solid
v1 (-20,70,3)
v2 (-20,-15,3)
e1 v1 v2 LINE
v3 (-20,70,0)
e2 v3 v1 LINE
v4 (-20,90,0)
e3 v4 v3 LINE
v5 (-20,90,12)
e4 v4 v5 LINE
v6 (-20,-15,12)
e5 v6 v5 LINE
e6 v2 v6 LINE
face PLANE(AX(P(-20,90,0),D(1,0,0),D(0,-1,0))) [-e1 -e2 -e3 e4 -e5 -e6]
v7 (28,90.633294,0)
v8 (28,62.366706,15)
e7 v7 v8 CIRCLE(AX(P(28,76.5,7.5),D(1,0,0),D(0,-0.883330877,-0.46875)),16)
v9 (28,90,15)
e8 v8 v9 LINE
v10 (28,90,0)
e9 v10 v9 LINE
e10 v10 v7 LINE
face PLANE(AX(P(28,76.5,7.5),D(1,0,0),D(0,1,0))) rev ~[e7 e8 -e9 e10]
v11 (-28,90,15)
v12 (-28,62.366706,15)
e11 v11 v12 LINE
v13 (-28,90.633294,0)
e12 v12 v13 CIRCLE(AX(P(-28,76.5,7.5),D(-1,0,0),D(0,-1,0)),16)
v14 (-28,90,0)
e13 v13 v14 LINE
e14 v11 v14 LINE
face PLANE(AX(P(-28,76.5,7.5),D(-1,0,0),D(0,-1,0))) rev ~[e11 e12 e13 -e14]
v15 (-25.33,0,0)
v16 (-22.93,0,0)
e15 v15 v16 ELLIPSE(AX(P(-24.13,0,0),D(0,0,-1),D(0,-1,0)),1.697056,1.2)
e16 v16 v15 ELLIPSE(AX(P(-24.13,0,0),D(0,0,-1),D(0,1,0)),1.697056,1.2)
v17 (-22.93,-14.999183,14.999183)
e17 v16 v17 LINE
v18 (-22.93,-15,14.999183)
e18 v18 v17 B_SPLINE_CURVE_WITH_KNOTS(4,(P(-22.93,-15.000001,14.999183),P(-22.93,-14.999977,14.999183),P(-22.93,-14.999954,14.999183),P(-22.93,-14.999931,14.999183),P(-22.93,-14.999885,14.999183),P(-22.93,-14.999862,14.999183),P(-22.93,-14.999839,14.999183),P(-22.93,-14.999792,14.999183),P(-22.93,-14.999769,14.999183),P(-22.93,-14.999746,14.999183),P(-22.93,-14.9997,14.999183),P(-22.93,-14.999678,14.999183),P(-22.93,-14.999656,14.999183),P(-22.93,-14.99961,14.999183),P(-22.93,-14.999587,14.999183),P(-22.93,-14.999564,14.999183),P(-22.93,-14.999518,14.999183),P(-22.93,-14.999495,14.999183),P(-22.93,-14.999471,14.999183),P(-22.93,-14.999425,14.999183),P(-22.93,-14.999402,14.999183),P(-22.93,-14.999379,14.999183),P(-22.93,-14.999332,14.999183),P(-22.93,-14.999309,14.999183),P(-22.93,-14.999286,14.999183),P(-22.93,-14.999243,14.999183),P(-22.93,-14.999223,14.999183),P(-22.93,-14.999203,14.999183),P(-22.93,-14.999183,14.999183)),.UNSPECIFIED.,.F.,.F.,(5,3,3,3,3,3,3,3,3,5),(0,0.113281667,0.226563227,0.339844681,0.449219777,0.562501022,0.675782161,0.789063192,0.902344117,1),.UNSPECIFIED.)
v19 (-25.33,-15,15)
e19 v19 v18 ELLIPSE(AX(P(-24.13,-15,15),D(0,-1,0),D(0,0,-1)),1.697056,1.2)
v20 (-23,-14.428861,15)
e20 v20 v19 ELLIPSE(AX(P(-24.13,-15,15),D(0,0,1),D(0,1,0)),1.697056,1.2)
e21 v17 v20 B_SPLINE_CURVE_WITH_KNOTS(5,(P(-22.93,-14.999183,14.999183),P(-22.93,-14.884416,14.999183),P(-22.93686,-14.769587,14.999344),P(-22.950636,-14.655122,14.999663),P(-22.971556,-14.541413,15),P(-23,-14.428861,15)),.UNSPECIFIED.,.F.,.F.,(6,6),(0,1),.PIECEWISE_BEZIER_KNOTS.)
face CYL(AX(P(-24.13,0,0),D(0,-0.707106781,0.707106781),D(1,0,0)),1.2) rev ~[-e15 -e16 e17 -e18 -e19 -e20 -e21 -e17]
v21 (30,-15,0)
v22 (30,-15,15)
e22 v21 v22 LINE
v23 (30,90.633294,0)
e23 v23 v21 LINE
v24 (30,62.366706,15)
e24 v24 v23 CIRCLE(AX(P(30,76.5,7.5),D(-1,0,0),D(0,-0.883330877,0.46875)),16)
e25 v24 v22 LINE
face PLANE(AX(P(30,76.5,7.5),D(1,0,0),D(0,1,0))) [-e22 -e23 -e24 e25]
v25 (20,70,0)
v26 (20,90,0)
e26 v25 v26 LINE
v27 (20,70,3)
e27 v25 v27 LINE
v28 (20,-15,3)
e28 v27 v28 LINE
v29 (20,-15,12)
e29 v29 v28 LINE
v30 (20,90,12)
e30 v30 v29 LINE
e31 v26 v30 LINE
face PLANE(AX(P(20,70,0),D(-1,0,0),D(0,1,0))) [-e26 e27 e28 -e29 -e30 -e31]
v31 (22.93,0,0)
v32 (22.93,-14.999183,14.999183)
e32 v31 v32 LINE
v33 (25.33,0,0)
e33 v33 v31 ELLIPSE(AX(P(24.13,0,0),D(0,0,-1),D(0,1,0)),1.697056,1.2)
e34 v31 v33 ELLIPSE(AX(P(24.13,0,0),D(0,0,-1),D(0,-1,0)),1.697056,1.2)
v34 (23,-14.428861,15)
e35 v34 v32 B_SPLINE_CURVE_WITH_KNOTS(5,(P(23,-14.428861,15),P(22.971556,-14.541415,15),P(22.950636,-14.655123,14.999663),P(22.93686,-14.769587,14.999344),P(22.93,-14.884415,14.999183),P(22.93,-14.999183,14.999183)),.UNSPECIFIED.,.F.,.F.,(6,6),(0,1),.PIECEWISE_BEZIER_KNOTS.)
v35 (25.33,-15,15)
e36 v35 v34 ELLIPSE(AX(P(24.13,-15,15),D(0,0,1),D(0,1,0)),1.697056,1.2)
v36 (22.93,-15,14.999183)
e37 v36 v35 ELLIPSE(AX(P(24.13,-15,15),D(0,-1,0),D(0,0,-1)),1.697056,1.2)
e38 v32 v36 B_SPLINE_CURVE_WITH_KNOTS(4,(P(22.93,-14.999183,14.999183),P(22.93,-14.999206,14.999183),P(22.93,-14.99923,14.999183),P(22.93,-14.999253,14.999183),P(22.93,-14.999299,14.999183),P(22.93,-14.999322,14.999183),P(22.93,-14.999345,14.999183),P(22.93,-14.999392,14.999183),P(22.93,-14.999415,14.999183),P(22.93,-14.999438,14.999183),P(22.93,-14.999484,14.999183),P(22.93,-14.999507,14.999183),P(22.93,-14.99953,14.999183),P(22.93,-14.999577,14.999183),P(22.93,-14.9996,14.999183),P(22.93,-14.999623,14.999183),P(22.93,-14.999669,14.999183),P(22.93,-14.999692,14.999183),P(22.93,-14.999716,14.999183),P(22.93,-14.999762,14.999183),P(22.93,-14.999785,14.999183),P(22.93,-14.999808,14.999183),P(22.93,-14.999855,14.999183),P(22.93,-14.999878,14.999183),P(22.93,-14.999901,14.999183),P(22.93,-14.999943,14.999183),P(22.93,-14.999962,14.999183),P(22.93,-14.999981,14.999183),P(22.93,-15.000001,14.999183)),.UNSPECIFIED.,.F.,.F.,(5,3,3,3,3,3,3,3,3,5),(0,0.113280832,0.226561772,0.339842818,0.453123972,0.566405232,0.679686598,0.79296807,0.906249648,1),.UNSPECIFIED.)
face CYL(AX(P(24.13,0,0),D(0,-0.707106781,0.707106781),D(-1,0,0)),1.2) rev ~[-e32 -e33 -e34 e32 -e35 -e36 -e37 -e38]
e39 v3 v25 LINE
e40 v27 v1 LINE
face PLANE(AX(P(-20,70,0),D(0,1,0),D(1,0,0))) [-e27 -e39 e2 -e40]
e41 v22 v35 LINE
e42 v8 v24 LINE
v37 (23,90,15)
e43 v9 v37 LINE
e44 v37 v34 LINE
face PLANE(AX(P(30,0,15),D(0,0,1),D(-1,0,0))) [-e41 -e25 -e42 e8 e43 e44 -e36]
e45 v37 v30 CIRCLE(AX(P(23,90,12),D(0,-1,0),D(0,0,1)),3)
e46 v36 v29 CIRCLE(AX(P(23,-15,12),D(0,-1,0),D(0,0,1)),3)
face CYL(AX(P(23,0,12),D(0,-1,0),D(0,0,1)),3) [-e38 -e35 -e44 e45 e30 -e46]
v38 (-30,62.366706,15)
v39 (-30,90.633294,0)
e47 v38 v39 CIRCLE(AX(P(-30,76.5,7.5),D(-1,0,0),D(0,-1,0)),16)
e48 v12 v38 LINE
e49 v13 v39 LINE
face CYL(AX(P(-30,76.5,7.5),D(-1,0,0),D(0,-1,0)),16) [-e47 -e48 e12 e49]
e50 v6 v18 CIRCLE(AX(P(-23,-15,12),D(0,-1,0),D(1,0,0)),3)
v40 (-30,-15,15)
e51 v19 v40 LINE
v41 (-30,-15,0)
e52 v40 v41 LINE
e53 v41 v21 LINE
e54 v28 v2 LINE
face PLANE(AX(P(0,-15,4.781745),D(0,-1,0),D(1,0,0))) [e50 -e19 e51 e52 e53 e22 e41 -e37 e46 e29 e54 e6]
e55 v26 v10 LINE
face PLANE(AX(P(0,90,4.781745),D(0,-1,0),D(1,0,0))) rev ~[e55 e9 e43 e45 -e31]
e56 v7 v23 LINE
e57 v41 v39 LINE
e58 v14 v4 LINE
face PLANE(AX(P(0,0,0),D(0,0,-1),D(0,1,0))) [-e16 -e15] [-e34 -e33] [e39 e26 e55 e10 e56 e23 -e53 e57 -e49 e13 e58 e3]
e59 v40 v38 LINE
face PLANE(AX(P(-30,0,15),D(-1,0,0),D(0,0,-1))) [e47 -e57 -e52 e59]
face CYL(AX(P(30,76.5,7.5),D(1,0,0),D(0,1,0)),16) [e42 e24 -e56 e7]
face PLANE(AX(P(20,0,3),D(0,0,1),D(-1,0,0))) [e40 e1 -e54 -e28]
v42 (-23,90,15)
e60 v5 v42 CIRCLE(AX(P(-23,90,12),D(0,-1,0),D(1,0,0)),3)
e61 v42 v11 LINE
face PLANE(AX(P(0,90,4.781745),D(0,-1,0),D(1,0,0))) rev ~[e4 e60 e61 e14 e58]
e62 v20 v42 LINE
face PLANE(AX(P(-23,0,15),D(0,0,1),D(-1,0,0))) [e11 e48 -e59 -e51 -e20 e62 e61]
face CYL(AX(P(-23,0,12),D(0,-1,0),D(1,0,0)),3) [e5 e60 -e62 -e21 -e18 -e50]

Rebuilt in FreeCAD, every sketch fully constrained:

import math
import FreeCAD as App
import Part
import Sketcher
from FreeCAD import Vector

doc = App.newDocument("Part")
body = doc.addObject("PartDesign::Body", "Body")

sketch1 = doc.addObject("Sketcher::SketchObject", "Sketch")
body.addObject(sketch1)
sketch1.Placement = App.Placement(Vector(0, 0, 0), App.Rotation(Vector(1, 0, 0), Vector(0, 0.707106781, 0.707106781), Vector(0, -0.707106781, 0.707106781), "ZXY"))
sketch1.addGeometry(Part.Circle(Vector(24.13, 0, 0), Vector(0, 0, 1), 1), False)
sketch1.addConstraint(Sketcher.Constraint("PointOnObject", 0, 3, -1))
sketch1.addConstraint(Sketcher.Constraint("Diameter", 0, 2.0))
sketch1.addConstraint(Sketcher.Constraint("DistanceX", -1, 1, 0, 3, 24.13))
pad1 = doc.addObject("PartDesign::Pad", "Pad")
body.addObject(pad1)
pad1.Profile = sketch1
pad1.Type = "TwoLengths"
pad1.Length = 100
pad1.Length2 = 20
body2 = doc.addObject("PartDesign::Body", "Body001")

sketch2 = doc.addObject("Sketcher::SketchObject", "Sketch001")
body2.addObject(sketch2)
sketch2.Placement = App.Placement(Vector(0, 0, 0), App.Rotation(Vector(1, 0, 0), Vector(0, 0.707106781, 0.707106781), Vector(0, -0.707106781, 0.707106781), "ZXY"))
sketch2.addGeometry(Part.Circle(Vector(-24.13, 0, 0), Vector(0, 0, 1), 1), False)
sketch2.addConstraint(Sketcher.Constraint("PointOnObject", 0, 3, -1))
sketch2.addConstraint(Sketcher.Constraint("Diameter", 0, 2.0))
sketch2.addConstraint(Sketcher.Constraint("DistanceX", 0, 3, -1, 1, 24.13))
pad2 = doc.addObject("PartDesign::Pad", "Pad001")
body2.addObject(pad2)
pad2.Profile = sketch2
pad2.Type = "TwoLengths"
pad2.Length = 100
pad2.Length2 = 20
body.AllowCompound = True
doc.recompute()

boolean = doc.addObject("PartDesign::Boolean", "Boolean")
body.addObject(boolean)
boolean.Type = "Fuse"
boolean.addObjects([body2])

sketch3 = doc.addObject("Sketcher::SketchObject", "Sketch002")
body.addObject(sketch3)
sketch3.AttachmentSupport = (doc.XZ_Plane, [""])
sketch3.MapMode = "FlatFace"
sketch3.addGeometry(Part.LineSegment(Vector(-30, 15, 0), Vector(-30, 0, 0)), False)
sketch3.addGeometry(Part.LineSegment(Vector(-30, 0, 0), Vector(30, 0, 0)), False)
sketch3.addGeometry(Part.LineSegment(Vector(30, 0, 0), Vector(30, 15, 0)), False)
sketch3.addGeometry(Part.LineSegment(Vector(30, 15, 0), Vector(23, 15, 0)), False)
sketch3.addGeometry(Part.ArcOfCircle(Part.Circle(Vector(23, 12, 0), Vector(0, 0, 1), 3), math.radians(90), math.radians(180)), False)
sketch3.addGeometry(Part.LineSegment(Vector(20, 12, 0), Vector(20, 3, 0)), False)
sketch3.addGeometry(Part.LineSegment(Vector(20, 3, 0), Vector(-20, 3, 0)), False)
sketch3.addGeometry(Part.LineSegment(Vector(-20, 3, 0), Vector(-20, 12, 0)), False)
sketch3.addGeometry(Part.ArcOfCircle(Part.Circle(Vector(-23, 12, 0), Vector(0, 0, 1), 3), math.radians(0), math.radians(90)), False)
sketch3.addGeometry(Part.LineSegment(Vector(-23, 15, 0), Vector(-30, 15, 0)), False)
sketch3.addConstraint(Sketcher.Constraint("Coincident", 0, 2, 1, 1))
sketch3.addConstraint(Sketcher.Constraint("Coincident", 1, 2, 2, 1))
sketch3.addConstraint(Sketcher.Constraint("Coincident", 2, 2, 3, 1))
sketch3.addConstraint(Sketcher.Constraint("Tangent", 3, 2, 4, 1))
sketch3.addConstraint(Sketcher.Constraint("Tangent", 4, 2, 5, 1))
sketch3.addConstraint(Sketcher.Constraint("Coincident", 5, 2, 6, 1))
sketch3.addConstraint(Sketcher.Constraint("Coincident", 6, 2, 7, 1))
sketch3.addConstraint(Sketcher.Constraint("Tangent", 7, 2, 8, 1))
sketch3.addConstraint(Sketcher.Constraint("Tangent", 8, 2, 9, 1))
sketch3.addConstraint(Sketcher.Constraint("Coincident", 9, 2, 0, 1))
sketch3.addConstraint(Sketcher.Constraint("Vertical", 0))
sketch3.addConstraint(Sketcher.Constraint("Horizontal", 1))
sketch3.addConstraint(Sketcher.Constraint("Vertical", 2))
sketch3.addConstraint(Sketcher.Constraint("Horizontal", 3))
sketch3.addConstraint(Sketcher.Constraint("Vertical", 5))
sketch3.addConstraint(Sketcher.Constraint("Horizontal", 6))
sketch3.addConstraint(Sketcher.Constraint("Vertical", 7))
sketch3.addConstraint(Sketcher.Constraint("Horizontal", 9))
sketch3.addConstraint(Sketcher.Constraint("Equal", 4, 8))
sketch3.addConstraint(Sketcher.Constraint("Symmetric", 0, 2, 1, 2, -1, 1))
sketch3.addConstraint(Sketcher.Constraint("Symmetric", 4, 3, 8, 3, -2))
sketch3.addConstraint(Sketcher.Constraint("Radius", 4, 3.0))
sketch3.addConstraint(Sketcher.Constraint("DistanceX", 1, 1, 1, 2, 60.0))
sketch3.addConstraint(Sketcher.Constraint("DistanceX", 3, 2, 3, 1, 7.0))
sketch3.addConstraint(Sketcher.Constraint("DistanceY", 0, 2, 0, 1, 15.0))
sketch3.addConstraint(Sketcher.Constraint("DistanceY", 5, 2, 5, 1, 9.0))
pad3 = doc.addObject("PartDesign::Pad", "Pad002")
body.addObject(pad3)
pad3.Profile = sketch3
pad3.Type = "TwoLengths"
pad3.Length = 15
pad3.Length2 = 90

sketch4 = doc.addObject("Sketcher::SketchObject", "Sketch003")
body.addObject(sketch4)
sketch4.AttachmentSupport = (doc.YZ_Plane, [""])
sketch4.MapMode = "FlatFace"
sketch4.AttachmentOffset = App.Placement(Vector(0, 0, -30), App.Rotation())
sketch4.addGeometry(Part.Circle(Vector(76.5, 7.5, 0), Vector(0, 0, 1), 16), False)
sketch4.addConstraint(Sketcher.Constraint("Diameter", 0, 32.0))
sketch4.addConstraint(Sketcher.Constraint("DistanceX", -1, 1, 0, 3, 76.5))
sketch4.addConstraint(Sketcher.Constraint("DistanceY", -1, 1, 0, 3, 7.5))
pad4 = doc.addObject("PartDesign::Pad", "Pad003")
body.addObject(pad4)
pad4.Profile = sketch4
pad4.Length = 2

sketch5 = doc.addObject("Sketcher::SketchObject", "Sketch004")
body.addObject(sketch5)
sketch5.AttachmentSupport = (doc.YZ_Plane, [""])
sketch5.MapMode = "FlatFace"
sketch5.AttachmentOffset = App.Placement(Vector(0, 0, 30), App.Rotation())
sketch5.addGeometry(Part.Circle(Vector(76.5, 7.5, 0), Vector(0, 0, 1), 16), False)
sketch5.addConstraint(Sketcher.Constraint("Diameter", 0, 32.0))
sketch5.addConstraint(Sketcher.Constraint("DistanceX", -1, 1, 0, 3, 76.5))
sketch5.addConstraint(Sketcher.Constraint("DistanceY", -1, 1, 0, 3, 7.5))
pad5 = doc.addObject("PartDesign::Pad", "Pad004")
body.addObject(pad5)
pad5.Profile = sketch5
pad5.Length = 2
pad5.Reversed = True

sketch6 = doc.addObject("Sketcher::SketchObject", "Sketch005")
body.addObject(sketch6)
sketch6.AttachmentSupport = (doc.XY_Plane, [""])
sketch6.MapMode = "FlatFace"
sketch6.addGeometry(Part.LineSegment(Vector(20, 90, 0), Vector(-20, 90, 0)), False)
sketch6.addGeometry(Part.LineSegment(Vector(-20, 90, 0), Vector(-20, 70, 0)), False)
sketch6.addGeometry(Part.LineSegment(Vector(-20, 70, 0), Vector(20, 70, 0)), False)
sketch6.addGeometry(Part.LineSegment(Vector(20, 70, 0), Vector(20, 90, 0)), False)
sketch6.addConstraint(Sketcher.Constraint("Coincident", 0, 2, 1, 1))
sketch6.addConstraint(Sketcher.Constraint("Coincident", 1, 2, 2, 1))
sketch6.addConstraint(Sketcher.Constraint("Coincident", 2, 2, 3, 1))
sketch6.addConstraint(Sketcher.Constraint("Coincident", 3, 2, 0, 1))
sketch6.addConstraint(Sketcher.Constraint("Horizontal", 0))
sketch6.addConstraint(Sketcher.Constraint("Vertical", 1))
sketch6.addConstraint(Sketcher.Constraint("Horizontal", 2))
sketch6.addConstraint(Sketcher.Constraint("Vertical", 3))
sketch6.addConstraint(Sketcher.Constraint("DistanceX", 0, 2, 0, 1, 40.0))
sketch6.addConstraint(Sketcher.Constraint("DistanceY", 1, 2, 1, 1, 20.0))
sketch6.addConstraint(Sketcher.Constraint("DistanceX", 0, 2, -1, 1, 20.0))
sketch6.addConstraint(Sketcher.Constraint("DistanceY", -1, 1, 0, 2, 90.0))
pocket1 = doc.addObject("PartDesign::Pocket", "Pocket")
body.addObject(pocket1)
pocket1.Profile = sketch6
pocket1.Length = 10
pocket1.Reversed = True

sketch7 = doc.addObject("Sketcher::SketchObject", "Sketch006")
body.addObject(sketch7)
sketch7.Placement = App.Placement(Vector(0, 0, 0), App.Rotation(Vector(1, 0, 0), Vector(0, 0.707106781, 0.707106781), Vector(0, -0.707106781, 0.707106781), "ZXY"))
sketch7.addGeometry(Part.Circle(Vector(24.13, 0, 0), Vector(0, 0, 1), 1.2), False)
sketch7.addGeometry(Part.Circle(Vector(-24.13, 0, 0), Vector(0, 0, 1), 1.2), False)
sketch7.addConstraint(Sketcher.Constraint("Equal", 0, 1))
sketch7.addConstraint(Sketcher.Constraint("Symmetric", 0, 3, 1, 3, -1, 1))
sketch7.addConstraint(Sketcher.Constraint("PointOnObject", 0, 3, -1))
sketch7.addConstraint(Sketcher.Constraint("Diameter", 0, 2.4))
sketch7.addConstraint(Sketcher.Constraint("DistanceX", -1, 1, 0, 3, 24.13))
pocket2 = doc.addObject("PartDesign::Pocket", "Pocket001")
body.addObject(pocket2)
pocket2.Profile = sketch7
pocket2.Type = "ThroughAll"
pocket2.Midplane = True

sketch8 = doc.addObject("Sketcher::SketchObject", "Sketch007")
body.addObject(sketch8)
sketch8.AttachmentSupport = (doc.YZ_Plane, [""])
sketch8.MapMode = "FlatFace"
sketch8.addGeometry(Part.LineSegment(Vector(0, 0, 0), Vector(0, -20.905988, 0)), False)
sketch8.addGeometry(Part.LineSegment(Vector(0, -20.905988, 0), Vector(125.272244, -20.905988, 0)), False)
sketch8.addGeometry(Part.LineSegment(Vector(125.272244, -20.905988, 0), Vector(125.272244, 0, 0)), False)
sketch8.addGeometry(Part.LineSegment(Vector(125.272244, 0, 0), Vector(0, 0, 0)), False)
sketch8.addConstraint(Sketcher.Constraint("Coincident", 0, 2, 1, 1))
sketch8.addConstraint(Sketcher.Constraint("Coincident", 1, 2, 2, 1))
sketch8.addConstraint(Sketcher.Constraint("Coincident", 2, 2, 3, 1))
sketch8.addConstraint(Sketcher.Constraint("Coincident", 3, 2, 0, 1))
sketch8.addConstraint(Sketcher.Constraint("Vertical", 0))
sketch8.addConstraint(Sketcher.Constraint("Horizontal", 1))
sketch8.addConstraint(Sketcher.Constraint("Vertical", 2))
sketch8.addConstraint(Sketcher.Constraint("Horizontal", 3))
sketch8.addConstraint(Sketcher.Constraint("Coincident", 3, 2, -1, 1))
sketch8.addConstraint(Sketcher.Constraint("DistanceY", 0, 2, 0, 1, 20.905988))
sketch8.addConstraint(Sketcher.Constraint("DistanceX", 1, 1, 1, 2, 125.272244))
pocket3 = doc.addObject("PartDesign::Pocket", "Pocket002")
body.addObject(pocket3)
pocket3.Profile = sketch8
pocket3.Length = 80
pocket3.Midplane = True

doc.recompute()
